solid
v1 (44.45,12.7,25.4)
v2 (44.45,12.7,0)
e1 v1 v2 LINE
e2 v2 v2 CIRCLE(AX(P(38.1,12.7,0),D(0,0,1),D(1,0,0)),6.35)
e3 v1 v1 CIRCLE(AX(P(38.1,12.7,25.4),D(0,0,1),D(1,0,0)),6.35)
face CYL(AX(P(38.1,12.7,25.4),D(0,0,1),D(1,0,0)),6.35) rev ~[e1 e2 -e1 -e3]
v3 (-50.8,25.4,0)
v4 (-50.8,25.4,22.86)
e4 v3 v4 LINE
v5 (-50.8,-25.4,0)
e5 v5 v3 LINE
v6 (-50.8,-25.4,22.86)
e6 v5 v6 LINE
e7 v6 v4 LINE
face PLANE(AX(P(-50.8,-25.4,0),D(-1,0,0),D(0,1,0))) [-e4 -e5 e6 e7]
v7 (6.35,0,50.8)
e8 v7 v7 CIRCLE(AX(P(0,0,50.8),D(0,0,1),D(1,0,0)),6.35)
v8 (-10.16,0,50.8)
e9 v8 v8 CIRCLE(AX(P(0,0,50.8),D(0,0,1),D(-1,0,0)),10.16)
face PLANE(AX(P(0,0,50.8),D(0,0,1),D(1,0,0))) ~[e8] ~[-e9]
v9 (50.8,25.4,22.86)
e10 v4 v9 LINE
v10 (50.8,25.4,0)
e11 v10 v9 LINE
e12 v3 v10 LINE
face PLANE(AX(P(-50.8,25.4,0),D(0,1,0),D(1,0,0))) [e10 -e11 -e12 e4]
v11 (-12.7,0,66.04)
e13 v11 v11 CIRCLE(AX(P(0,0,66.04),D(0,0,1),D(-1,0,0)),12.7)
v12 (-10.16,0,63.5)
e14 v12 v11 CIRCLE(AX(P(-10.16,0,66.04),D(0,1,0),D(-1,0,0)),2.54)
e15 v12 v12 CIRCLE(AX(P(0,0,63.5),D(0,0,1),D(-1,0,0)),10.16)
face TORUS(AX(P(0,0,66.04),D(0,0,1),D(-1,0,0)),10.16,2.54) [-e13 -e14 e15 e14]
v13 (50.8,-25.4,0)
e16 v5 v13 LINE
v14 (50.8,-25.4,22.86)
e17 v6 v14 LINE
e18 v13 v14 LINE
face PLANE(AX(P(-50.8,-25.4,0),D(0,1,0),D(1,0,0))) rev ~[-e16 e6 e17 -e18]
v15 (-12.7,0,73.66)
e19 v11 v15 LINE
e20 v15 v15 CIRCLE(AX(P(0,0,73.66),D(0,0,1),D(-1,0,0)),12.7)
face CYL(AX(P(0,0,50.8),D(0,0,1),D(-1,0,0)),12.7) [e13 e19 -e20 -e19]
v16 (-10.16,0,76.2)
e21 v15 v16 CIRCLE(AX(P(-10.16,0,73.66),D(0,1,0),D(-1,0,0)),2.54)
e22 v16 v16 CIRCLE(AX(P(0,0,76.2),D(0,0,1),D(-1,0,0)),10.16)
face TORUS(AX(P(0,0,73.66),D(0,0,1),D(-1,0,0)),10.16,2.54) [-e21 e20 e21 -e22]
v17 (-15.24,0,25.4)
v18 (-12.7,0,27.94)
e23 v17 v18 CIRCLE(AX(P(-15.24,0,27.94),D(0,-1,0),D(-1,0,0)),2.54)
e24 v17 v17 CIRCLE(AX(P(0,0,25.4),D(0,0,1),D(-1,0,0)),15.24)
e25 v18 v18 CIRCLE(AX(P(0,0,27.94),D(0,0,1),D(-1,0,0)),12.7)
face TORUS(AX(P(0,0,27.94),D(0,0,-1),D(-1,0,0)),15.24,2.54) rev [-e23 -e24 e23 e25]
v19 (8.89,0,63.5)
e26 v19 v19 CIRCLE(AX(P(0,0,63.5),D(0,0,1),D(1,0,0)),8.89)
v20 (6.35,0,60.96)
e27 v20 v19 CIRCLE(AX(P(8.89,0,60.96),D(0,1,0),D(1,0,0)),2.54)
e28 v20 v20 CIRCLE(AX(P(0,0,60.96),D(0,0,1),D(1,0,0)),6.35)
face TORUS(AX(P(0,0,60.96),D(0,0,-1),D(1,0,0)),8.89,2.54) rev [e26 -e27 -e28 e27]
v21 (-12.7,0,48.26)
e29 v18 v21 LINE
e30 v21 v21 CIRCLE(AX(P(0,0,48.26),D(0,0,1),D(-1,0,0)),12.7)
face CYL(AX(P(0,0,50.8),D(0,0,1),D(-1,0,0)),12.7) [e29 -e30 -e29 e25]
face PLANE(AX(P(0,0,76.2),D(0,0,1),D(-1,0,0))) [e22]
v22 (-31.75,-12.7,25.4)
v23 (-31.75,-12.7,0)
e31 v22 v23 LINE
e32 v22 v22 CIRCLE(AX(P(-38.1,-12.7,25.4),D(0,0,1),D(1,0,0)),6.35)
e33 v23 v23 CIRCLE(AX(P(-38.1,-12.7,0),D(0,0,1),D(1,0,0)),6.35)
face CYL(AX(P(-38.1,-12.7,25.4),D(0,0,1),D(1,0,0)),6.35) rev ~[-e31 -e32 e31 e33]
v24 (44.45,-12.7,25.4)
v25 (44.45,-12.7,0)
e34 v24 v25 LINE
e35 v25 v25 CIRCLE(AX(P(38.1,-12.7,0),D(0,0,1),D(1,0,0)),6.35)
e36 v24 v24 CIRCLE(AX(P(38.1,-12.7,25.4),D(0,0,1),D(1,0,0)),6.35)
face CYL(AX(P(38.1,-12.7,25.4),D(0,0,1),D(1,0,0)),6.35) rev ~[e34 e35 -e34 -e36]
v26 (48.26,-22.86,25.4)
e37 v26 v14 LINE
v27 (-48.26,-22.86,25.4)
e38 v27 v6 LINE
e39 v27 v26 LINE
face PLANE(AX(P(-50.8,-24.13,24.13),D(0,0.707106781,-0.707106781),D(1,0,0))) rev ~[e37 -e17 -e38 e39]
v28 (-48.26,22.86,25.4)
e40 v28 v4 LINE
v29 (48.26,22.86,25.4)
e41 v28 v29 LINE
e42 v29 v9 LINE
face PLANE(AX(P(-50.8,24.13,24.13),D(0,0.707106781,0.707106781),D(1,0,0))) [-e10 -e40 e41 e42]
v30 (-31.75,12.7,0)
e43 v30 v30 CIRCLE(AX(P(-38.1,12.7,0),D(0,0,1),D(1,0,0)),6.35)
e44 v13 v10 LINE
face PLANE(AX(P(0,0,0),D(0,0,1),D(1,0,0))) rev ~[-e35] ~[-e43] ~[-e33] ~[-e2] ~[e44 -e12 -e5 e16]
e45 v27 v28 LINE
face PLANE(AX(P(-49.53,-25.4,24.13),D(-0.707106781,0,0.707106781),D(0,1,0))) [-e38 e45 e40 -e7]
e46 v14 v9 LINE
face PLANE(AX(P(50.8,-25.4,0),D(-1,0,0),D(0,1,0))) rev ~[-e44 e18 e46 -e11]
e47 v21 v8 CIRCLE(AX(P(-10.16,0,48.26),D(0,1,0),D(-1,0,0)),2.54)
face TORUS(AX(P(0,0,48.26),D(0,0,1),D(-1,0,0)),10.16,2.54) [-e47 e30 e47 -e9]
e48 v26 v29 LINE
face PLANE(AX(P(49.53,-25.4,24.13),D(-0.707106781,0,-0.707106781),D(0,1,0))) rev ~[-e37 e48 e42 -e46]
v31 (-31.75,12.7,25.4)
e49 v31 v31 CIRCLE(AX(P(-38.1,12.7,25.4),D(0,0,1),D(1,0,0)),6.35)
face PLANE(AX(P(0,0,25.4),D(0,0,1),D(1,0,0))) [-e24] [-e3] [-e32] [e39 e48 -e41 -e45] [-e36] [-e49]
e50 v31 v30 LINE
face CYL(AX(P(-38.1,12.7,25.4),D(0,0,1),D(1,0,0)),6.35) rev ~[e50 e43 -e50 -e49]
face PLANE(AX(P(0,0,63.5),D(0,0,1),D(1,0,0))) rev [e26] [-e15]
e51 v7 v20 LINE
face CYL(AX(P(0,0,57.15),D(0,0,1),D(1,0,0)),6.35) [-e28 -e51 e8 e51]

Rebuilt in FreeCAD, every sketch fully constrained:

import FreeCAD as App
import Part
import Sketcher
Q = App.Units.Quantity


def edges_at(feature, points):
    """Names of the edges that pass closest to the given points."""
    edges = feature.Shape.Edges
    near = lambda p: min(range(len(edges)), key=lambda i: edges[i].distToShape(Part.Vertex(*p))[0])
    return sorted({f"Edge{near(p) + 1}" for p in points})

doc = App.newDocument("Part")
body = doc.addObject("PartDesign::Body", "Body")

sketch1 = doc.addObject("Sketcher::SketchObject", "Sketch")
body.addObject(sketch1)
sketch1.AttachmentSupport = (doc.XY_Plane, [""])
sketch1.MapMode = "FlatFace"
sketch1.addGeometry([
    Part.LineSegment(App.Vector(-50.8, 25.4, 0), App.Vector(-50.8, -25.4, 0)),
    Part.LineSegment(App.Vector(-50.8, -25.4, 0), App.Vector(50.8, -25.4, 0)),
    Part.LineSegment(App.Vector(50.8, -25.4, 0), App.Vector(50.8, 25.4, 0)),
    Part.LineSegment(App.Vector(50.8, 25.4, 0), App.Vector(-50.8, 25.4, 0)),
], False)
sketch1.addConstraint([
    Sketcher.Constraint("Coincident", 0, 2, 1, 1),
    Sketcher.Constraint("Coincident", 1, 2, 2, 1),
    Sketcher.Constraint("Coincident", 2, 2, 3, 1),
    Sketcher.Constraint("Coincident", 3, 2, 0, 1),
    Sketcher.Constraint("Vertical", 0),
    Sketcher.Constraint("Horizontal", 1),
    Sketcher.Constraint("Vertical", 2),
    Sketcher.Constraint("Horizontal", 3),
    Sketcher.Constraint("Symmetric", 0, 2, 2, 2, -1, 1),
    Sketcher.Constraint("DistanceX", 1, 1, 1, 2, Q("4 in")),
    Sketcher.Constraint("DistanceY", 0, 2, 0, 1, Q("2 in")),
])
pad1 = doc.addObject("PartDesign::Pad", "Pad")
body.addObject(pad1)
pad1.Profile = sketch1
pad1.Length = Q("1 in")

sketch2 = doc.addObject("Sketcher::SketchObject", "Sketch001")
body.addObject(sketch2)
sketch2.AttachmentSupport = (doc.XY_Plane, [""])
sketch2.MapMode = "FlatFace"
sketch2.AttachmentOffset = App.Placement(App.Vector(0, 0, 1 * 25.4), App.Rotation())
sketch2.addGeometry([
    Part.Circle(App.Vector(-38.1, 12.7, 0), App.Vector(0, 0, 1), 6.35),
    Part.Circle(App.Vector(-38.1, -12.7, 0), App.Vector(0, 0, 1), 6.35),
    Part.Circle(App.Vector(38.1, -12.7, 0), App.Vector(0, 0, 1), 6.35),
    Part.Circle(App.Vector(38.1, 12.7, 0), App.Vector(0, 0, 1), 6.35),
], False)
sketch2.addConstraint([
    Sketcher.Constraint("Equal", 0, 1),
    Sketcher.Constraint("Equal", 1, 2),
    Sketcher.Constraint("Equal", 2, 3),
    Sketcher.Constraint("Symmetric", 0, 3, 2, 3, -1, 1),
    Sketcher.Constraint("Symmetric", 1, 3, 3, 3, -1, 1),
    Sketcher.Constraint("Symmetric", 1, 3, 2, 3, -2),
    Sketcher.Constraint("Diameter", 0, Q("0.5 in")),
    Sketcher.Constraint("DistanceY", 1, 3, 0, 3, Q("1 in")),
    Sketcher.Constraint("DistanceX", 1, 3, 2, 3, Q("3 in")),
])
pocket1 = doc.addObject("PartDesign::Pocket", "Pocket")
body.addObject(pocket1)
pocket1.Profile = sketch2
pocket1.Type = "ThroughAll"

sketch3 = doc.addObject("Sketcher::SketchObject", "Sketch002")
body.addObject(sketch3)
sketch3.AttachmentSupport = (doc.XZ_Plane, [""])
sketch3.MapMode = "FlatFace"
sketch3.addGeometry([
    Part.LineSegment(App.Vector(-12.7, 76.2, 0), App.Vector(-12.7, 25.4, 0)),
    Part.LineSegment(App.Vector(-12.7, 25.4, 0), App.Vector(0, 25.4, 0)),
    Part.LineSegment(App.Vector(0, 25.4, 0), App.Vector(0, 76.2, 0)),
    Part.LineSegment(App.Vector(0, 76.2, 0), App.Vector(-12.7, 76.2, 0)),
], False)
sketch3.addConstraint([
    Sketcher.Constraint("Coincident", 0, 2, 1, 1),
    Sketcher.Constraint("Coincident", 1, 2, 2, 1),
    Sketcher.Constraint("Coincident", 2, 2, 3, 1),
    Sketcher.Constraint("Coincident", 3, 2, 0, 1),
    Sketcher.Constraint("Vertical", 0),
    Sketcher.Constraint("Horizontal", 1),
    Sketcher.Constraint("Vertical", 2),
    Sketcher.Constraint("Horizontal", 3),
    Sketcher.Constraint("PointOnObject", 1, 2, -2),
    Sketcher.Constraint("DistanceY", 0, 2, 0, 1, Q("2 in")),
    Sketcher.Constraint("DistanceX", 1, 1, 1, 2, Q("0.5 in")),
    Sketcher.Constraint("DistanceY", -1, 1, 0, 2, Q("1 in")),
])
revolution = doc.addObject("PartDesign::Revolution", "Revolution")
body.addObject(revolution)
revolution.Profile = sketch3
revolution.ReferenceAxis = (sketch3, ["V_Axis"])
revolution.Angle = 360

sketch4 = doc.addObject("Sketcher::SketchObject", "Sketch003")
body.addObject(sketch4)
sketch4.AttachmentSupport = (doc.XZ_Plane, [""])
sketch4.MapMode = "FlatFace"
sketch4.addGeometry([
    Part.LineSegment(App.Vector(6.35, 63.5, 0), App.Vector(6.35, 50.8, 0)),
    Part.LineSegment(App.Vector(6.35, 50.8, 0), App.Vector(17.982004, 50.8, 0)),
    Part.LineSegment(App.Vector(17.982004, 50.8, 0), App.Vector(17.982004, 63.5, 0)),
    Part.LineSegment(App.Vector(17.982004, 63.5, 0), App.Vector(6.35, 63.5, 0)),
], False)
sketch4.addConstraint([
    Sketcher.Constraint("Coincident", 0, 2, 1, 1),
    Sketcher.Constraint("Coincident", 1, 2, 2, 1),
    Sketcher.Constraint("Coincident", 2, 2, 3, 1),
    Sketcher.Constraint("Coincident", 3, 2, 0, 1),
    Sketcher.Constraint("Vertical", 0),
    Sketcher.Constraint("Horizontal", 1),
    Sketcher.Constraint("Vertical", 2),
    Sketcher.Constraint("Horizontal", 3),
    Sketcher.Constraint("DistanceY", 0, 2, 0, 1, Q("0.5 in")),
    Sketcher.Constraint("DistanceY", -1, 1, 0, 2, Q("2 in")),
    Sketcher.Constraint("DistanceX", -1, 1, 0, 2, Q("0.25 in")),
    Sketcher.Constraint("DistanceX", 1, 1, 1, 2, Q("11.632004 mm")),
])
groove = doc.addObject("PartDesign::Groove", "Groove")
body.addObject(groove)
groove.Profile = sketch4
groove.ReferenceAxis = (sketch4, ["V_Axis"])
groove.Angle = 360
doc.recompute()

fillet = doc.addObject("PartDesign::Fillet", "Fillet")
body.addObject(fillet)
fillet.Base = (groove, edges_at(groove, [
    (12.7, 0, 50.8),
    (-6.35, 0, 63.5),
    (12.7, 0, 63.5),
    (12.7, 0, 25.4),
    (12.7, 0, 76.2),
]))
fillet.Radius = Q("0.1 in")
doc.recompute()

chamfer = doc.addObject("PartDesign::Chamfer", "Chamfer")
body.addObject(chamfer)
chamfer.Base = (fillet, edges_at(fillet, [
    (0, -25.4, 25.4),
    (-50.8, 0, 25.4),
    (0, 25.4, 25.4),
    (50.8, 0, 25.4),
]))
chamfer.Size = Q("0.1 in")

doc.recompute()
